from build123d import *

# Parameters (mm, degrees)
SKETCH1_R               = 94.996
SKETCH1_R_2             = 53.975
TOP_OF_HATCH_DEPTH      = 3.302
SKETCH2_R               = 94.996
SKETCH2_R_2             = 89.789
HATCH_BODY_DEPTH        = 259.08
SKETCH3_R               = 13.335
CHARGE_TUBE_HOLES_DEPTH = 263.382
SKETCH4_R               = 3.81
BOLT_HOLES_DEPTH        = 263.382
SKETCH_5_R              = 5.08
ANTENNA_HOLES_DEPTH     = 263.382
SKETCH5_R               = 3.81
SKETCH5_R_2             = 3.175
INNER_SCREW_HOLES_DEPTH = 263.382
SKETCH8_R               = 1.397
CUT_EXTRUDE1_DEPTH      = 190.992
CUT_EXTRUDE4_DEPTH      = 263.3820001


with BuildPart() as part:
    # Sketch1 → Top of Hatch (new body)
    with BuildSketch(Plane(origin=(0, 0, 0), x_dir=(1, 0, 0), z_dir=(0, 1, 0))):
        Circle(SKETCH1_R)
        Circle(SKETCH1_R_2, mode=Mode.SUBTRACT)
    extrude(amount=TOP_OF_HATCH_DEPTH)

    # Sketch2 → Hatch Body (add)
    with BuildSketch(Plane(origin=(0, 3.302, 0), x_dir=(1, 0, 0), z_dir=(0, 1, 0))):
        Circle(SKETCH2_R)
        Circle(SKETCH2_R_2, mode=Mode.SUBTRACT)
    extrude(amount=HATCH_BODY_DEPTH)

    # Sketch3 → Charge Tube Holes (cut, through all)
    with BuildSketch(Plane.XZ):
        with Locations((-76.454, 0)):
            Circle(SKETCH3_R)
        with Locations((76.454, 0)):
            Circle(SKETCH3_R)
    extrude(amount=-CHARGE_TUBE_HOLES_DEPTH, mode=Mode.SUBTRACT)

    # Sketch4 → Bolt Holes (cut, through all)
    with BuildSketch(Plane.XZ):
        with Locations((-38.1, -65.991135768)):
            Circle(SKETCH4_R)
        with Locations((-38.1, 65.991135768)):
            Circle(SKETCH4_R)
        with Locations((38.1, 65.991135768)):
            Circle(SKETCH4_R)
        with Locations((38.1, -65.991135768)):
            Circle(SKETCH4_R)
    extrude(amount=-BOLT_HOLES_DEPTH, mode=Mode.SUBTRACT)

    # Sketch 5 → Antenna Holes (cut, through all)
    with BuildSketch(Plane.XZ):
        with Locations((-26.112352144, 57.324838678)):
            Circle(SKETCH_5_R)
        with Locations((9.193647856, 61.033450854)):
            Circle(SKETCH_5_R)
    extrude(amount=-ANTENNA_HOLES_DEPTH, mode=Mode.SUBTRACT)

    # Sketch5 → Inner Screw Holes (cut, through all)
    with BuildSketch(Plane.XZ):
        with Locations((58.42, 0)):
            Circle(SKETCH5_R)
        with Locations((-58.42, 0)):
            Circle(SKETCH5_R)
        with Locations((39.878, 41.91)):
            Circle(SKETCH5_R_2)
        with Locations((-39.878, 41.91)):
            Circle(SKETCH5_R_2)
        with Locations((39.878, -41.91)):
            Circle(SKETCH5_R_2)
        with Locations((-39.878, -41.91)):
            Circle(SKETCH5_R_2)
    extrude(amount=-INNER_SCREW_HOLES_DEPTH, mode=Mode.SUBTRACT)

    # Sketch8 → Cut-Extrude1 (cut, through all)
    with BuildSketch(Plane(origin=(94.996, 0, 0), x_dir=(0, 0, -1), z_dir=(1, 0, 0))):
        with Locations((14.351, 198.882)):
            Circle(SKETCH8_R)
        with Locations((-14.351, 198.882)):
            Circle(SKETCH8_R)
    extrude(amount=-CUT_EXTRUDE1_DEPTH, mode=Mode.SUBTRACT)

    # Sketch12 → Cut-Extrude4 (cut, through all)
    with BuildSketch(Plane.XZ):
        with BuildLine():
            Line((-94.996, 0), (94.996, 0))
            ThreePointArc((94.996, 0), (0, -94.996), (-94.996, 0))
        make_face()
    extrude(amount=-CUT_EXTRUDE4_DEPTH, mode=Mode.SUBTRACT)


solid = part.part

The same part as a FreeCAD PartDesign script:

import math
import FreeCAD as App
import Part
import Sketcher

V = App.Vector
Q = App.Units.Quantity

doc = App.newDocument("Part")
params = doc.addObject("Spreadsheet::Sheet", "Params")
for row, (alias, value) in enumerate([
    ("sketch1_diameter", "7.48 in"),
    ("sketch1_diameter2", "4.25 in"),
    ("pad1_length", "0.13 in"),
    ("sketch2_diameter", "7.48 in"),
    ("sketch2_diameter2", "7.07 in"),
    ("pad2_length", "10.2 in"),
    ("sketch3_diameter", "1.05 in"),
    ("sketch4_diameter", "0.3 in"),
    ("sketch5_diameter", "0.4 in"),
    ("sketch6_diameter", "0.3 in"),
    ("sketch6_diameter2", "0.25 in"),
    ("sketch7_diameter", "0.11 in"),
    ("sketch8_radius", "3.74 in"),
], start=1):
    params.set(f"A{row}", alias)
    params.set(f"B{row}", "=" + value)
    params.setAlias(f"B{row}", alias)

body = doc.addObject("PartDesign::Body", "Body")

sketch1 = body.newObject("Sketcher::SketchObject", "Sketch")
sketch1.AttachmentSupport = (doc.getObject("XZ_Plane"), [""])
sketch1.MapMode = "FlatFace"
sketch1.addGeometry([
    Part.Circle(V(0, 0, 0), V(0, 0, 1), 95),
    Part.Circle(V(0, 0, 0), V(0, 0, 1), 54),
], False)
sketch1.addConstraint([
    Sketcher.Constraint("Coincident", 0, 3, -1, 1),
    Sketcher.Constraint("Coincident", 1, 3, -1, 1),
    Sketcher.Constraint("Diameter", 0, Q("7.48 in")),
    Sketcher.Constraint("Diameter", 1, Q("4.25 in")),
])
sketch1.setExpression("Constraints[2]", "Params.sketch1_diameter")
sketch1.setExpression("Constraints[3]", "Params.sketch1_diameter2")
pad1 = body.newObject("PartDesign::Pad", "Pad")
pad1.Profile = sketch1
pad1.setExpression("Length", "Params.pad1_length")
pad1.Reversed = True

sketch2 = body.newObject("Sketcher::SketchObject", "Sketch001")
sketch2.AttachmentSupport = (doc.getObject("XZ_Plane"), [""])
sketch2.MapMode = "FlatFace"
sketch2.AttachmentOffset = App.Placement(V(0, 0, -0.13 * 25.4), App.Rotation())
sketch2.addGeometry([
    Part.Circle(V(0, 0, 0), V(0, 0, 1), 95),
    Part.Circle(V(0, 0, 0), V(0, 0, 1), 90),
], False)
sketch2.addConstraint([
    Sketcher.Constraint("Coincident", 0, 3, -1, 1),
    Sketcher.Constraint("Coincident", 1, 3, -1, 1),
    Sketcher.Constraint("Diameter", 0, Q("7.48 in")),
    Sketcher.Constraint("Diameter", 1, Q("7.07 in")),
])
sketch2.setExpression("Constraints[2]", "Params.sketch2_diameter")
sketch2.setExpression("Constraints[3]", "Params.sketch2_diameter2")
pad2 = body.newObject("PartDesign::Pad", "Pad001")
pad2.Profile = sketch2
pad2.setExpression("Length", "Params.pad2_length")
pad2.Reversed = True

sketch3 = body.newObject("Sketcher::SketchObject", "Sketch002")
sketch3.AttachmentSupport = (doc.getObject("XZ_Plane"), [""])
sketch3.MapMode = "FlatFace"
sketch3.addGeometry([
    Part.Circle(V(-76, 0, 0), V(0, 0, 1), 13),
    Part.Circle(V(76, 0, 0), V(0, 0, 1), 13),
], False)
sketch3.addConstraint([
    Sketcher.Constraint("Equal", 0, 1),
    Sketcher.Constraint("Symmetric", 0, 3, 1, 3, -1, 1),
    Sketcher.Constraint("PointOnObject", 0, 3, -1),
    Sketcher.Constraint("Diameter", 0, Q("1.05 in")),
    Sketcher.Constraint("DistanceX", 0, 3, -1, 1, Q("3.01 in")),
])
sketch3.setExpression("Constraints[3]", "Params.sketch3_diameter")
pocket1 = body.newObject("PartDesign::Pocket", "Pocket")
pocket1.Profile = sketch3
pocket1.Type = "ThroughAll"

sketch4 = body.newObject("Sketcher::SketchObject", "Sketch003")
sketch4.AttachmentSupport = (doc.getObject("XZ_Plane"), [""])
sketch4.MapMode = "FlatFace"
sketch4.addGeometry([
    Part.Circle(V(-38.1, -66, 0), V(0, 0, 1), 3.8),
    Part.Circle(V(-38.1, 66, 0), V(0, 0, 1), 3.8),
    Part.Circle(V(38.1, 66, 0), V(0, 0, 1), 3.8),
    Part.Circle(V(38.1, -66, 0), V(0, 0, 1), 3.8),
], False)
sketch4.addConstraint([
    Sketcher.Constraint("Equal", 0, 1),
    Sketcher.Constraint("Equal", 1, 2),
    Sketcher.Constraint("Equal", 2, 3),
    Sketcher.Constraint("Symmetric", 0, 3, 2, 3, -1, 1),
    Sketcher.Constraint("Symmetric", 1, 3, 3, 3, -1, 1),
    Sketcher.Constraint("Symmetric", 1, 3, 2, 3, -2),
    Sketcher.Constraint("Diameter", 0, Q("0.3 in")),
    Sketcher.Constraint("DistanceX", 1, 3, 2, 3, Q("3 in")),
    Sketcher.Constraint("DistanceY", 0, 3, 1, 3, 131.982272),
])
sketch4.setExpression("Constraints[6]", "Params.sketch4_diameter")
pocket2 = body.newObject("PartDesign::Pocket", "Pocket001")
pocket2.Profile = sketch4
pocket2.Type = "ThroughAll"

sketch5 = body.newObject("Sketcher::SketchObject", "Sketch004")
sketch5.AttachmentSupport = (doc.getObject("XZ_Plane"), [""])
sketch5.MapMode = "FlatFace"
sketch5.addGeometry([
    Part.Circle(V(-26, 57, 0), V(0, 0, 1), 5),
    Part.Circle(V(9, 61, 0), V(0, 0, 1), 5),
], False)
sketch5.addConstraint([
    Sketcher.Constraint("Equal", 0, 1),
    Sketcher.Constraint("Diameter", 0, Q("0.4 in")),
    Sketcher.Constraint("DistanceX", 0, 3, 1, 3, Q("1.39 in")),
    Sketcher.Constraint("DistanceY", -1, 1, 0, 3, 57.324839),
    Sketcher.Constraint("DistanceY", -1, 1, 1, 3, 61.033451),
    Sketcher.Constraint("DistanceX", 0, 3, -1, 1, 26.112352),
])
sketch5.setExpression("Constraints[1]", "Params.sketch5_diameter")
pocket3 = body.newObject("PartDesign::Pocket", "Pocket002")
pocket3.Profile = sketch5
pocket3.Type = "ThroughAll"

sketch6 = body.newObject("Sketcher::SketchObject", "Sketch005")
sketch6.AttachmentSupport = (doc.getObject("XZ_Plane"), [""])
sketch6.MapMode = "FlatFace"
sketch6.addGeometry([
    Part.Circle(V(58.4, 0, 0), V(0, 0, 1), 3.8),
    Part.Circle(V(-58.4, 0, 0), V(0, 0, 1), 3.8),
    Part.Circle(V(39.9, 41.9, 0), V(0, 0, 1), 3.2),
    Part.Circle(V(-39.9, 41.9, 0), V(0, 0, 1), 3.2),
    Part.Circle(V(39.9, -41.9, 0), V(0, 0, 1), 3.2),
    Part.Circle(V(-39.9, -41.9, 0), V(0, 0, 1), 3.2),
], False)
sketch6.addConstraint([
    Sketcher.Constraint("Equal", 0, 1),
    Sketcher.Constraint("Equal", 2, 3),
    Sketcher.Constraint("Equal", 3, 4),
    Sketcher.Constraint("Equal", 4, 5),
    Sketcher.Constraint("Symmetric", 0, 3, 1, 3, -1, 1),
    Sketcher.Constraint("Symmetric", 3, 3, 4, 3, -1, 1),
    Sketcher.Constraint("Symmetric", 2, 3, 5, 3, -1, 1),
    Sketcher.Constraint("Symmetric", 2, 3, 3, 3, -2),
    Sketcher.Constraint("PointOnObject", 0, 3, -1),
    Sketcher.Constraint("Diameter", 0, Q("0.3 in")),
    Sketcher.Constraint("Diameter", 2, Q("0.25 in")),
    Sketcher.Constraint("DistanceX", -1, 1, 0, 3, Q("2.3 in")),
    Sketcher.Constraint("DistanceY", 4, 3, 2, 3, Q("3.3 in")),
    Sketcher.Constraint("DistanceX", -1, 1, 2, 3, Q("1.57 in")),
])
sketch6.setExpression("Constraints[9]", "Params.sketch6_diameter")
sketch6.setExpression("Constraints[10]", "Params.sketch6_diameter2")
pocket4 = body.newObject("PartDesign::Pocket", "Pocket003")
pocket4.Profile = sketch6
pocket4.Type = "ThroughAll"

sketch7 = body.newObject("Sketcher::SketchObject", "Sketch006")
sketch7.AttachmentSupport = (doc.getObject("YZ_Plane"), [""])
sketch7.MapMode = "FlatFace"
sketch7.AttachmentOffset = App.Placement(V(0, 0, 3.74 * 25.4), App.Rotation())
sketch7.addGeometry([
    Part.Circle(V(198.9, -14.4, 0), V(0, 0, 1), 1.4),
    Part.Circle(V(198.9, 14.4, 0), V(0, 0, 1), 1.4),
], False)
sketch7.addConstraint([
    Sketcher.Constraint("Equal", 0, 1),
    Sketcher.Constraint("Symmetric", 0, 3, 1, 3, -1),
    Sketcher.Constraint("Diameter", 0, Q("0.11 in")),
    Sketcher.Constraint("DistanceX", -1, 1, 0, 3, Q("7.83 in")),
    Sketcher.Constraint("DistanceY", 0, 3, 1, 3, Q("1.13 in")),
])
sketch7.setExpression("Constraints[2]", "Params.sketch7_diameter")
pocket5 = body.newObject("PartDesign::Pocket", "Pocket004")
pocket5.Profile = sketch7
pocket5.Type = "ThroughAll"

sketch8 = body.newObject("Sketcher::SketchObject", "Sketch007")
sketch8.AttachmentSupport = (doc.getObject("XZ_Plane"), [""])
sketch8.MapMode = "FlatFace"
sketch8.addGeometry([
    Part.LineSegment(V(95, 0, 0), V(-95, 0, 0)),
    Part.ArcOfCircle(Part.Circle(V(0, 0, 0), V(0, 0, 1), 95), math.radians(180), math.radians(360)),
], False)
sketch8.addConstraint([
    Sketcher.Constraint("Coincident", 0, 1, 1, 2),
    Sketcher.Constraint("Coincident", 1, 1, 0, 2),
    Sketcher.Constraint("Horizontal", 0),
    Sketcher.Constraint("Coincident", 1, 3, -1, 1),
    Sketcher.Constraint("PointOnObject", 0, 1, -1),
    Sketcher.Constraint("Radius", 1, Q("3.74 in")),
])
sketch8.setExpression("Constraints[5]", "Params.sketch8_radius")
pocket6 = body.newObject("PartDesign::Pocket", "Pocket005")
pocket6.Profile = sketch8
pocket6.Type = "ThroughAll"

doc.recompute()
